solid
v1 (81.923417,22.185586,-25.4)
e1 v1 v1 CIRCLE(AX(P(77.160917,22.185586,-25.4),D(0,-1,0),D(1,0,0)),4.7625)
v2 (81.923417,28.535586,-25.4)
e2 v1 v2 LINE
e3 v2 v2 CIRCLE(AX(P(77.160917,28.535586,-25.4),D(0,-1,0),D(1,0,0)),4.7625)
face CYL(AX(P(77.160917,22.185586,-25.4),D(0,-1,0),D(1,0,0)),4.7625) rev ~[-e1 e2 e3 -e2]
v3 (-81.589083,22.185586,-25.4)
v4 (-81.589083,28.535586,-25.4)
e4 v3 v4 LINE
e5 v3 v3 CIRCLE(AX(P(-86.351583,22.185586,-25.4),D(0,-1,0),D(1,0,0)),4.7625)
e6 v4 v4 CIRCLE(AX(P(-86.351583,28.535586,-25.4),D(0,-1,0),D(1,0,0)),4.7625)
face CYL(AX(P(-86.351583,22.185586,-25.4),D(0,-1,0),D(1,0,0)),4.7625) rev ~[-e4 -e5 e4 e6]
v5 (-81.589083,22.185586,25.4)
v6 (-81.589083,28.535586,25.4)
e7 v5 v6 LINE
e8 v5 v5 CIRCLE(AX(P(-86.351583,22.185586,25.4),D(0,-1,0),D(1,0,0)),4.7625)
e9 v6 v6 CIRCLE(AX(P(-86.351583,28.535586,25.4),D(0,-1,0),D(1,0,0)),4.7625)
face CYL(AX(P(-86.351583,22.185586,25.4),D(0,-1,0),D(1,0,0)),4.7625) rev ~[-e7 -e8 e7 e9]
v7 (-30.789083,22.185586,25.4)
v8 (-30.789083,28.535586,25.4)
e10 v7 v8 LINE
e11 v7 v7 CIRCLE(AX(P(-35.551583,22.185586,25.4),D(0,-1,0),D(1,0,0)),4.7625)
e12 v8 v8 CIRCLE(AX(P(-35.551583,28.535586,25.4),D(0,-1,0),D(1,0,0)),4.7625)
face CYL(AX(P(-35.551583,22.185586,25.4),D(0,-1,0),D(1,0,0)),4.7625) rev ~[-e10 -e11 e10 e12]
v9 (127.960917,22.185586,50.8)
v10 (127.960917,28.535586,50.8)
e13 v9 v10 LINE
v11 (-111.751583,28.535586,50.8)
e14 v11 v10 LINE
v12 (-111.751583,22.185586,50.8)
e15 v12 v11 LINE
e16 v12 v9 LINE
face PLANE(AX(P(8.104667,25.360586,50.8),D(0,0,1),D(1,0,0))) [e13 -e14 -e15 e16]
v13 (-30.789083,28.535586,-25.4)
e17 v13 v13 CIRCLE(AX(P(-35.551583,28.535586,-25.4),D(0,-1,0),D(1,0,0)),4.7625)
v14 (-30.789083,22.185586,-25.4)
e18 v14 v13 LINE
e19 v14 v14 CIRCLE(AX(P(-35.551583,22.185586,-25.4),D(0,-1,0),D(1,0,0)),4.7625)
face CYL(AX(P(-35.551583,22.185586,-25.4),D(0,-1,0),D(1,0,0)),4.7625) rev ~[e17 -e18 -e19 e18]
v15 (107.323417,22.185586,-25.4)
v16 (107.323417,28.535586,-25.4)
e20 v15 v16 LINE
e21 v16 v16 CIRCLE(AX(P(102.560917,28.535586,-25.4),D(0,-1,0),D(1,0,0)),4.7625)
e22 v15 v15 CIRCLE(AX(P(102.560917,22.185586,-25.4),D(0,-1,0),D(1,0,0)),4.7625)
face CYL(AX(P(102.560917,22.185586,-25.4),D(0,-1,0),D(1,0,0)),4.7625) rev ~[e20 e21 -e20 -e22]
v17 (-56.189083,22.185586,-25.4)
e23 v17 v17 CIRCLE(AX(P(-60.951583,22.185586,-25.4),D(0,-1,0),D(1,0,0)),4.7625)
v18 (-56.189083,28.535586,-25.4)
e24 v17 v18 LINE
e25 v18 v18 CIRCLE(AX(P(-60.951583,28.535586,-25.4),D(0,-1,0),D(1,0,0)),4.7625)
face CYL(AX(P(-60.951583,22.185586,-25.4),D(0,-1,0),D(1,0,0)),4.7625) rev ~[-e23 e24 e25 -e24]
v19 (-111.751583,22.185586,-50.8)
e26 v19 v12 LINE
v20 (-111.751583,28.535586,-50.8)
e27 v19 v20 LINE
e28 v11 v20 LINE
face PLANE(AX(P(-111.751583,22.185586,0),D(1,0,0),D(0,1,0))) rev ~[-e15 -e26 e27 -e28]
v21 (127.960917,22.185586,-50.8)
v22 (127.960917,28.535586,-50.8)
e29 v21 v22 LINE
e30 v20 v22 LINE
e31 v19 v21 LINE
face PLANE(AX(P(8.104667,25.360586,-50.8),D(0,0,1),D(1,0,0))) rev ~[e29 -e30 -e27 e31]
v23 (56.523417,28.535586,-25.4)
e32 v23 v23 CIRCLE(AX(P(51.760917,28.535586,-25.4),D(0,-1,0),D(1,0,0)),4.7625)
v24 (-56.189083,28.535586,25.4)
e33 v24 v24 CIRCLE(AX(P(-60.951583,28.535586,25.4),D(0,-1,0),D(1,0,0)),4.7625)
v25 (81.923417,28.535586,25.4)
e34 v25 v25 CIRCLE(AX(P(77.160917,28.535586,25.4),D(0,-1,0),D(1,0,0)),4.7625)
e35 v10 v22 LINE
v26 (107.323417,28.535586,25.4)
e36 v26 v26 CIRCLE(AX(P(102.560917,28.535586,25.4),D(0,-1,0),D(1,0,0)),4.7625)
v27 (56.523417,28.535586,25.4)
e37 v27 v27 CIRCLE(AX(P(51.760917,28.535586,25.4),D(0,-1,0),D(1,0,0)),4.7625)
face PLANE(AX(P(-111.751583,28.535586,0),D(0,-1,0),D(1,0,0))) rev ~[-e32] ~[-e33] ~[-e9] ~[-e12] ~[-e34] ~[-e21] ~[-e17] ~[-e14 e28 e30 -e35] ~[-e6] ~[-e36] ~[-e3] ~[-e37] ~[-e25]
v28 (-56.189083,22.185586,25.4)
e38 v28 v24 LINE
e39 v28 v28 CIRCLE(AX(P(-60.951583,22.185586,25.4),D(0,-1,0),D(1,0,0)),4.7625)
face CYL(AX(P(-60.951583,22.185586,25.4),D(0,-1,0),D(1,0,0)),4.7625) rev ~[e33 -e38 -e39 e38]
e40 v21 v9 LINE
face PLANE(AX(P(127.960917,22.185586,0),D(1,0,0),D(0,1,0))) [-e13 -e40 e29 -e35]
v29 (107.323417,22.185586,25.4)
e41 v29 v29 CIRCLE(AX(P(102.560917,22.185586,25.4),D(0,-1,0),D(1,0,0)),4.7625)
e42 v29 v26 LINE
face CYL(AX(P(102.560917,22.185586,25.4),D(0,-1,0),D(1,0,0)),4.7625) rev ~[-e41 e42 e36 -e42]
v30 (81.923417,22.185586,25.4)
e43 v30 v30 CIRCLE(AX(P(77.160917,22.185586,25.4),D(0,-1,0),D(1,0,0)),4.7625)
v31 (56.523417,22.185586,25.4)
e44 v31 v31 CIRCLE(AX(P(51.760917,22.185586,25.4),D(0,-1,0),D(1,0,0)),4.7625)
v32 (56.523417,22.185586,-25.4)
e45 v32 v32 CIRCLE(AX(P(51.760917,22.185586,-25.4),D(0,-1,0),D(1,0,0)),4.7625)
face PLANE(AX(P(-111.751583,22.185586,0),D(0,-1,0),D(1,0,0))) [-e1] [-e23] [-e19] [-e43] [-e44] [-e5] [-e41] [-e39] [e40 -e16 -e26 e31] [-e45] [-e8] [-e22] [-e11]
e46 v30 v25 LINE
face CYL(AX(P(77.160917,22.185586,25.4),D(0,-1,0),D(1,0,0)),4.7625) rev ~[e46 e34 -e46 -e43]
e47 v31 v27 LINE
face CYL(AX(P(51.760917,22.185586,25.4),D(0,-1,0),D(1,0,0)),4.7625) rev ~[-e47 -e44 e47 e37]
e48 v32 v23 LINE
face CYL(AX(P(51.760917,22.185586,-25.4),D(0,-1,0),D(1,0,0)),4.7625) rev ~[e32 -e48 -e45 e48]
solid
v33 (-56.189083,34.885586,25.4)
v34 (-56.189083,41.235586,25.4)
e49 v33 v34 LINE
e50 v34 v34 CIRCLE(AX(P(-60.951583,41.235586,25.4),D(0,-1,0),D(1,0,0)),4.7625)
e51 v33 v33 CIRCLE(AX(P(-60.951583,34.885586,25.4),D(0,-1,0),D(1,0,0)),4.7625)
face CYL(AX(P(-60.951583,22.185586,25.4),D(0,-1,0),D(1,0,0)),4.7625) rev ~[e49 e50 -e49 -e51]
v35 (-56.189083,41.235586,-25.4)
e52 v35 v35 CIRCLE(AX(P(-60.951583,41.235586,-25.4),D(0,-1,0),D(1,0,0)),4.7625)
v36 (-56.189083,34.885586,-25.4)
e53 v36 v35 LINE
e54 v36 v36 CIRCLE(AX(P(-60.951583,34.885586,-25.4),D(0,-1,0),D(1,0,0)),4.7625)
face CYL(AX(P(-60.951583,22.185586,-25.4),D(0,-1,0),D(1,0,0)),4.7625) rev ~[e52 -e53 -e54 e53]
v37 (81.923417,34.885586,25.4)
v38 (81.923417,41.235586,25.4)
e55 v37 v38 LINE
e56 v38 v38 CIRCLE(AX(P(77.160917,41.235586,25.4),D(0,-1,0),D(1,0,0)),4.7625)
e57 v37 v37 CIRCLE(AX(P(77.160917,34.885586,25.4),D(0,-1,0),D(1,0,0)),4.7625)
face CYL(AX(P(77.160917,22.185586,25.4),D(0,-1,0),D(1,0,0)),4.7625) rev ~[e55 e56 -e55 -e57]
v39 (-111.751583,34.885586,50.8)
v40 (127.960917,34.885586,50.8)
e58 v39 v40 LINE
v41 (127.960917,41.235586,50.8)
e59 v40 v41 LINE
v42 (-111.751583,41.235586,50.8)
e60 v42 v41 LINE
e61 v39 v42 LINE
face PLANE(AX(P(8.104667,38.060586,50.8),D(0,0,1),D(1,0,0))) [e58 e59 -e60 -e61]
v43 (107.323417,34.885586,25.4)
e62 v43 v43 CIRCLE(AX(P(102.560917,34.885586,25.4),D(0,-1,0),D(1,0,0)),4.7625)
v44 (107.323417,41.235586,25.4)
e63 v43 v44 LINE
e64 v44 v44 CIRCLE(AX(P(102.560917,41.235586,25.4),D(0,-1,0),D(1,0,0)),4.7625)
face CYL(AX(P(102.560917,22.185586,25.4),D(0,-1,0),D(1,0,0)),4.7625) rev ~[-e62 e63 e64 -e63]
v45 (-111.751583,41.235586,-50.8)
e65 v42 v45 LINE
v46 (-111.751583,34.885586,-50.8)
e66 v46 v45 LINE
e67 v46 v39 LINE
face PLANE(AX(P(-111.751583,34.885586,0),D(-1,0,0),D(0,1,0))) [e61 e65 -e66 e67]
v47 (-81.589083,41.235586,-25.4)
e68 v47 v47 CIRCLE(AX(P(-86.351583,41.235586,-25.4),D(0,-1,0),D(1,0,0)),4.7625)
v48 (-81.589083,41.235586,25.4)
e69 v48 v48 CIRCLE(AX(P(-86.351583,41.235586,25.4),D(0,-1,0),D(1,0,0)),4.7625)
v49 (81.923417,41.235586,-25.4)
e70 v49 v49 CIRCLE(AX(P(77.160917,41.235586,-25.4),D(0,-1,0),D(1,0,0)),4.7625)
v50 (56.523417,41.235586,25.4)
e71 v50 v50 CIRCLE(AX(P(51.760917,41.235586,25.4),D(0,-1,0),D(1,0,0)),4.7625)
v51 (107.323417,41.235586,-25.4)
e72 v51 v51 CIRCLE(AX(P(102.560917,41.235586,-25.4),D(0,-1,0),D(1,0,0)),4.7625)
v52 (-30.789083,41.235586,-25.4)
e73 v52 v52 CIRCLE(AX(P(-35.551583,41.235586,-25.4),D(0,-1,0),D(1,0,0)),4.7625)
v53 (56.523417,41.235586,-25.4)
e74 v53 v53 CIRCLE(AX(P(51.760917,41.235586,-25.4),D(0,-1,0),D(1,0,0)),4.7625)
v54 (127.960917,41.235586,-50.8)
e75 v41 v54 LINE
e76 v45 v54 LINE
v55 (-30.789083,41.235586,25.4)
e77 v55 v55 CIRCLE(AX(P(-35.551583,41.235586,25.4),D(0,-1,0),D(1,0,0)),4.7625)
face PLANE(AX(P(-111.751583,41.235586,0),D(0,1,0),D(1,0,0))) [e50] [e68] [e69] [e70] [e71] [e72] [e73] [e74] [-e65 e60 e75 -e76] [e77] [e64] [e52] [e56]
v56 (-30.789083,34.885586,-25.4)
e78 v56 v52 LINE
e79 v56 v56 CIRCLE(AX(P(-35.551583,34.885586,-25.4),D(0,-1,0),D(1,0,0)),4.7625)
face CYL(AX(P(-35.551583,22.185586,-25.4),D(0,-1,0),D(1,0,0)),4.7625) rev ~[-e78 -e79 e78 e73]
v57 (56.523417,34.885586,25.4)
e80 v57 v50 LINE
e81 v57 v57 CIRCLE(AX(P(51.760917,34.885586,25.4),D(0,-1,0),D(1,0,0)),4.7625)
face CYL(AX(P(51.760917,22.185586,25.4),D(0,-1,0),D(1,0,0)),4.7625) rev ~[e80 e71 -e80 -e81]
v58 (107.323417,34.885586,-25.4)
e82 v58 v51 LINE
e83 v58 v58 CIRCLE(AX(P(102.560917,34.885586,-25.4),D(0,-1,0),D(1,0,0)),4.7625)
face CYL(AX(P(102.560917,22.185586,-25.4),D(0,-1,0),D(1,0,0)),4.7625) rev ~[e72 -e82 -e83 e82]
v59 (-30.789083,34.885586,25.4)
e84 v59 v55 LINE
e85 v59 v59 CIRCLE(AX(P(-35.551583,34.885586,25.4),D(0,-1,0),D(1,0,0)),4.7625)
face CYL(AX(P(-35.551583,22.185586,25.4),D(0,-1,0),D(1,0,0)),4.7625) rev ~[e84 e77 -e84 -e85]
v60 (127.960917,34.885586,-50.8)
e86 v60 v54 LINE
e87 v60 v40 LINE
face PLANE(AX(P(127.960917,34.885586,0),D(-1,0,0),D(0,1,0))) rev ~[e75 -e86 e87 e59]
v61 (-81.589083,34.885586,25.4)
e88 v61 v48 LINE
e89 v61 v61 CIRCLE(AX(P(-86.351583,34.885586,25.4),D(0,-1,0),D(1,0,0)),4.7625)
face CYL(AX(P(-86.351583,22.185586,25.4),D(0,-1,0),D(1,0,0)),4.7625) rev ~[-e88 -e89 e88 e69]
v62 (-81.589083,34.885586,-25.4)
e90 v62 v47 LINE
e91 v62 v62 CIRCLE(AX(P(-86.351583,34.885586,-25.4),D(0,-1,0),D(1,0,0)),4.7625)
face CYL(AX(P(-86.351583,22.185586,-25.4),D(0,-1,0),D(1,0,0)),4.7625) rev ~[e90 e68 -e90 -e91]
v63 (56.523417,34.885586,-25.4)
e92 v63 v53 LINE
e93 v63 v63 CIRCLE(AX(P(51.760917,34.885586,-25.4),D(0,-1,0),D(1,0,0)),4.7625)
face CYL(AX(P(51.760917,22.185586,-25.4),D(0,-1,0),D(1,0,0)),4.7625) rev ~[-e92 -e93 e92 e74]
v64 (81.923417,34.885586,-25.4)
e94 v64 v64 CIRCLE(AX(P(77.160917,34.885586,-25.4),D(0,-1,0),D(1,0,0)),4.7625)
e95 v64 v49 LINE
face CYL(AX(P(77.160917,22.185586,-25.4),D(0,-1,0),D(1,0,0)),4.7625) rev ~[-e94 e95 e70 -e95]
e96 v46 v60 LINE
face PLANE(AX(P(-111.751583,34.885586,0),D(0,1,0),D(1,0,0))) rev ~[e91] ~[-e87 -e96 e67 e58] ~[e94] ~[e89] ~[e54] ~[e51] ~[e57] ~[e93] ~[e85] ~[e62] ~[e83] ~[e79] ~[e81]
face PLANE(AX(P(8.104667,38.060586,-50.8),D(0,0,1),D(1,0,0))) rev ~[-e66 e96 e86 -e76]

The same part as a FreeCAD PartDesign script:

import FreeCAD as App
import Part
import Sketcher

V = App.Vector
Q = App.Units.Quantity

doc = App.newDocument("Part")
body = doc.addObject("PartDesign::Body", "Body")
body.AllowCompound = True

sketch1 = body.newObject("Sketcher::SketchObject", "Sketch")
sketch1.AttachmentSupport = (doc.getObject("XY_Plane"), [""])
sketch1.MapMode = "FlatFace"
sketch1.addGeometry([
    Part.LineSegment(V(-112, 41, 0), V(-112, 35, 0)),
    Part.LineSegment(V(-112, 35, 0), V(128, 35, 0)),
    Part.LineSegment(V(128, 35, 0), V(128, 41, 0)),
    Part.LineSegment(V(128, 41, 0), V(-112, 41, 0)),
    Part.LineSegment(V(-112, 29, 0), V(-112, 22, 0)),
    Part.LineSegment(V(-112, 22, 0), V(128, 22, 0)),
    Part.LineSegment(V(128, 22, 0), V(128, 29, 0)),
    Part.LineSegment(V(128, 29, 0), V(-112, 29, 0)),
], False)
sketch1.addConstraint([
    Sketcher.Constraint("Coincident", 0, 2, 1, 1),
    Sketcher.Constraint("Coincident", 1, 2, 2, 1),
    Sketcher.Constraint("Coincident", 2, 2, 3, 1),
    Sketcher.Constraint("Coincident", 3, 2, 0, 1),
    Sketcher.Constraint("Coincident", 4, 2, 5, 1),
    Sketcher.Constraint("Coincident", 5, 2, 6, 1),
    Sketcher.Constraint("Coincident", 6, 2, 7, 1),
    Sketcher.Constraint("Coincident", 7, 2, 4, 1),
    Sketcher.Constraint("Vertical", 0),
    Sketcher.Constraint("Horizontal", 1),
    Sketcher.Constraint("Vertical", 2),
    Sketcher.Constraint("Horizontal", 3),
    Sketcher.Constraint("Vertical", 4),
    Sketcher.Constraint("Horizontal", 5),
    Sketcher.Constraint("Vertical", 6),
    Sketcher.Constraint("Horizontal", 7),
    Sketcher.Constraint("Vertical", 3, 2, 4, 2),
    Sketcher.Constraint("Vertical", 2, 2, 5, 2),
    Sketcher.Constraint("Equal", 2, 4),
    Sketcher.Constraint("DistanceY", 0, 2, 0, 1, Q("0.25 in")),
    Sketcher.Constraint("DistanceY", 4, 2, 0, 2, Q("0.5 in")),
    Sketcher.Constraint("DistanceX", 1, 1, 1, 2, Q("9.4375 in")),
    Sketcher.Constraint("DistanceX", 0, 2, -1, 1, 111.751583),
    Sketcher.Constraint("DistanceY", -1, 1, 0, 2, 34.885586),
])
pad1 = body.newObject("PartDesign::Pad", "Pad")
pad1.Profile = sketch1
pad1.Length = Q("4 in")
pad1.Midplane = True

sketch2 = body.newObject("Sketcher::SketchObject", "Sketch001")
sketch2.AttachmentSupport = (doc.getObject("XZ_Plane"), [""])
sketch2.MapMode = "FlatFace"
sketch2.AttachmentOffset = App.Placement(V(0, 0, -22.185586), App.Rotation())
sketch2.addGeometry([
    Part.Circle(V(-86.4, 25.4, 0), V(0, 0, 1), 4.8),
    Part.Circle(V(102.6, 25.4, 0), V(0, 0, 1), 4.8),
    Part.Circle(V(-86.4, -25.4, 0), V(0, 0, 1), 4.8),
    Part.Circle(V(-61, 25.4, 0), V(0, 0, 1), 4.8),
    Part.Circle(V(-61, -25.4, 0), V(0, 0, 1), 4.8),
    Part.Circle(V(-35.6, 25.4, 0), V(0, 0, 1), 4.8),
    Part.Circle(V(-35.6, -25.4, 0), V(0, 0, 1), 4.8),
    Part.Circle(V(102.6, -25.4, 0), V(0, 0, 1), 4.8),
    Part.Circle(V(77.2, 25.4, 0), V(0, 0, 1), 4.8),
    Part.Circle(V(77.2, -25.4, 0), V(0, 0, 1), 4.8),
    Part.Circle(V(51.8, 25.4, 0), V(0, 0, 1), 4.8),
    Part.Circle(V(51.8, -25.4, 0), V(0, 0, 1), 4.8),
], False)
sketch2.addConstraint([
    Sketcher.Constraint("Equal", 0, 1),
    Sketcher.Constraint("Equal", 1, 2),
    Sketcher.Constraint("Equal", 2, 3),
    Sketcher.Constraint("Equal", 3, 4),
    Sketcher.Constraint("Equal", 4, 5),
    Sketcher.Constraint("Equal", 5, 6),
    Sketcher.Constraint("Equal", 6, 7),
    Sketcher.Constraint("Equal", 7, 8),
    Sketcher.Constraint("Equal", 8, 9),
    Sketcher.Constraint("Equal", 9, 10),
    Sketcher.Constraint("Equal", 10, 11),
    Sketcher.Constraint("Symmetric", 0, 3, 2, 3, -1),
    Sketcher.Constraint("Symmetric", 3, 3, 4, 3, -1),
    Sketcher.Constraint("Symmetric", 5, 3, 6, 3, -1),
    Sketcher.Constraint("Symmetric", 1, 3, 7, 3, -1),
    Sketcher.Constraint("Symmetric", 8, 3, 9, 3, -1),
    Sketcher.Constraint("Symmetric", 10, 3, 11, 3, -1),
    Sketcher.Constraint("Horizontal", 0, 3, 1, 3),
    Sketcher.Constraint("Horizontal", 1, 3, 3, 3),
    Sketcher.Constraint("Horizontal", 3, 3, 5, 3),
    Sketcher.Constraint("Horizontal", 5, 3, 8, 3),
    Sketcher.Constraint("Horizontal", 8, 3, 10, 3),
    Sketcher.Constraint("Diameter", 0, Q("0.375 in")),
    Sketcher.Constraint("DistanceY", -1, 1, 0, 3, Q("1 in")),
    Sketcher.Constraint("DistanceX", 0, 3, 3, 3, Q("1 in")),
    Sketcher.Constraint("DistanceX", 3, 3, 5, 3, Q("1 in")),
    Sketcher.Constraint("DistanceX", 8, 3, 1, 3, Q("1 in")),
    Sketcher.Constraint("DistanceX", 10, 3, 8, 3, Q("1 in")),
    Sketcher.Constraint("DistanceX", 0, 3, 1, 3, Q("7.4375 in")),
    Sketcher.Constraint("DistanceX", 0, 3, -1, 1, 86.351583),
])
pocket1 = body.newObject("PartDesign::Pocket", "Pocket")
pocket1.Profile = sketch2
pocket1.Type = "ThroughAll"

doc.recompute()
